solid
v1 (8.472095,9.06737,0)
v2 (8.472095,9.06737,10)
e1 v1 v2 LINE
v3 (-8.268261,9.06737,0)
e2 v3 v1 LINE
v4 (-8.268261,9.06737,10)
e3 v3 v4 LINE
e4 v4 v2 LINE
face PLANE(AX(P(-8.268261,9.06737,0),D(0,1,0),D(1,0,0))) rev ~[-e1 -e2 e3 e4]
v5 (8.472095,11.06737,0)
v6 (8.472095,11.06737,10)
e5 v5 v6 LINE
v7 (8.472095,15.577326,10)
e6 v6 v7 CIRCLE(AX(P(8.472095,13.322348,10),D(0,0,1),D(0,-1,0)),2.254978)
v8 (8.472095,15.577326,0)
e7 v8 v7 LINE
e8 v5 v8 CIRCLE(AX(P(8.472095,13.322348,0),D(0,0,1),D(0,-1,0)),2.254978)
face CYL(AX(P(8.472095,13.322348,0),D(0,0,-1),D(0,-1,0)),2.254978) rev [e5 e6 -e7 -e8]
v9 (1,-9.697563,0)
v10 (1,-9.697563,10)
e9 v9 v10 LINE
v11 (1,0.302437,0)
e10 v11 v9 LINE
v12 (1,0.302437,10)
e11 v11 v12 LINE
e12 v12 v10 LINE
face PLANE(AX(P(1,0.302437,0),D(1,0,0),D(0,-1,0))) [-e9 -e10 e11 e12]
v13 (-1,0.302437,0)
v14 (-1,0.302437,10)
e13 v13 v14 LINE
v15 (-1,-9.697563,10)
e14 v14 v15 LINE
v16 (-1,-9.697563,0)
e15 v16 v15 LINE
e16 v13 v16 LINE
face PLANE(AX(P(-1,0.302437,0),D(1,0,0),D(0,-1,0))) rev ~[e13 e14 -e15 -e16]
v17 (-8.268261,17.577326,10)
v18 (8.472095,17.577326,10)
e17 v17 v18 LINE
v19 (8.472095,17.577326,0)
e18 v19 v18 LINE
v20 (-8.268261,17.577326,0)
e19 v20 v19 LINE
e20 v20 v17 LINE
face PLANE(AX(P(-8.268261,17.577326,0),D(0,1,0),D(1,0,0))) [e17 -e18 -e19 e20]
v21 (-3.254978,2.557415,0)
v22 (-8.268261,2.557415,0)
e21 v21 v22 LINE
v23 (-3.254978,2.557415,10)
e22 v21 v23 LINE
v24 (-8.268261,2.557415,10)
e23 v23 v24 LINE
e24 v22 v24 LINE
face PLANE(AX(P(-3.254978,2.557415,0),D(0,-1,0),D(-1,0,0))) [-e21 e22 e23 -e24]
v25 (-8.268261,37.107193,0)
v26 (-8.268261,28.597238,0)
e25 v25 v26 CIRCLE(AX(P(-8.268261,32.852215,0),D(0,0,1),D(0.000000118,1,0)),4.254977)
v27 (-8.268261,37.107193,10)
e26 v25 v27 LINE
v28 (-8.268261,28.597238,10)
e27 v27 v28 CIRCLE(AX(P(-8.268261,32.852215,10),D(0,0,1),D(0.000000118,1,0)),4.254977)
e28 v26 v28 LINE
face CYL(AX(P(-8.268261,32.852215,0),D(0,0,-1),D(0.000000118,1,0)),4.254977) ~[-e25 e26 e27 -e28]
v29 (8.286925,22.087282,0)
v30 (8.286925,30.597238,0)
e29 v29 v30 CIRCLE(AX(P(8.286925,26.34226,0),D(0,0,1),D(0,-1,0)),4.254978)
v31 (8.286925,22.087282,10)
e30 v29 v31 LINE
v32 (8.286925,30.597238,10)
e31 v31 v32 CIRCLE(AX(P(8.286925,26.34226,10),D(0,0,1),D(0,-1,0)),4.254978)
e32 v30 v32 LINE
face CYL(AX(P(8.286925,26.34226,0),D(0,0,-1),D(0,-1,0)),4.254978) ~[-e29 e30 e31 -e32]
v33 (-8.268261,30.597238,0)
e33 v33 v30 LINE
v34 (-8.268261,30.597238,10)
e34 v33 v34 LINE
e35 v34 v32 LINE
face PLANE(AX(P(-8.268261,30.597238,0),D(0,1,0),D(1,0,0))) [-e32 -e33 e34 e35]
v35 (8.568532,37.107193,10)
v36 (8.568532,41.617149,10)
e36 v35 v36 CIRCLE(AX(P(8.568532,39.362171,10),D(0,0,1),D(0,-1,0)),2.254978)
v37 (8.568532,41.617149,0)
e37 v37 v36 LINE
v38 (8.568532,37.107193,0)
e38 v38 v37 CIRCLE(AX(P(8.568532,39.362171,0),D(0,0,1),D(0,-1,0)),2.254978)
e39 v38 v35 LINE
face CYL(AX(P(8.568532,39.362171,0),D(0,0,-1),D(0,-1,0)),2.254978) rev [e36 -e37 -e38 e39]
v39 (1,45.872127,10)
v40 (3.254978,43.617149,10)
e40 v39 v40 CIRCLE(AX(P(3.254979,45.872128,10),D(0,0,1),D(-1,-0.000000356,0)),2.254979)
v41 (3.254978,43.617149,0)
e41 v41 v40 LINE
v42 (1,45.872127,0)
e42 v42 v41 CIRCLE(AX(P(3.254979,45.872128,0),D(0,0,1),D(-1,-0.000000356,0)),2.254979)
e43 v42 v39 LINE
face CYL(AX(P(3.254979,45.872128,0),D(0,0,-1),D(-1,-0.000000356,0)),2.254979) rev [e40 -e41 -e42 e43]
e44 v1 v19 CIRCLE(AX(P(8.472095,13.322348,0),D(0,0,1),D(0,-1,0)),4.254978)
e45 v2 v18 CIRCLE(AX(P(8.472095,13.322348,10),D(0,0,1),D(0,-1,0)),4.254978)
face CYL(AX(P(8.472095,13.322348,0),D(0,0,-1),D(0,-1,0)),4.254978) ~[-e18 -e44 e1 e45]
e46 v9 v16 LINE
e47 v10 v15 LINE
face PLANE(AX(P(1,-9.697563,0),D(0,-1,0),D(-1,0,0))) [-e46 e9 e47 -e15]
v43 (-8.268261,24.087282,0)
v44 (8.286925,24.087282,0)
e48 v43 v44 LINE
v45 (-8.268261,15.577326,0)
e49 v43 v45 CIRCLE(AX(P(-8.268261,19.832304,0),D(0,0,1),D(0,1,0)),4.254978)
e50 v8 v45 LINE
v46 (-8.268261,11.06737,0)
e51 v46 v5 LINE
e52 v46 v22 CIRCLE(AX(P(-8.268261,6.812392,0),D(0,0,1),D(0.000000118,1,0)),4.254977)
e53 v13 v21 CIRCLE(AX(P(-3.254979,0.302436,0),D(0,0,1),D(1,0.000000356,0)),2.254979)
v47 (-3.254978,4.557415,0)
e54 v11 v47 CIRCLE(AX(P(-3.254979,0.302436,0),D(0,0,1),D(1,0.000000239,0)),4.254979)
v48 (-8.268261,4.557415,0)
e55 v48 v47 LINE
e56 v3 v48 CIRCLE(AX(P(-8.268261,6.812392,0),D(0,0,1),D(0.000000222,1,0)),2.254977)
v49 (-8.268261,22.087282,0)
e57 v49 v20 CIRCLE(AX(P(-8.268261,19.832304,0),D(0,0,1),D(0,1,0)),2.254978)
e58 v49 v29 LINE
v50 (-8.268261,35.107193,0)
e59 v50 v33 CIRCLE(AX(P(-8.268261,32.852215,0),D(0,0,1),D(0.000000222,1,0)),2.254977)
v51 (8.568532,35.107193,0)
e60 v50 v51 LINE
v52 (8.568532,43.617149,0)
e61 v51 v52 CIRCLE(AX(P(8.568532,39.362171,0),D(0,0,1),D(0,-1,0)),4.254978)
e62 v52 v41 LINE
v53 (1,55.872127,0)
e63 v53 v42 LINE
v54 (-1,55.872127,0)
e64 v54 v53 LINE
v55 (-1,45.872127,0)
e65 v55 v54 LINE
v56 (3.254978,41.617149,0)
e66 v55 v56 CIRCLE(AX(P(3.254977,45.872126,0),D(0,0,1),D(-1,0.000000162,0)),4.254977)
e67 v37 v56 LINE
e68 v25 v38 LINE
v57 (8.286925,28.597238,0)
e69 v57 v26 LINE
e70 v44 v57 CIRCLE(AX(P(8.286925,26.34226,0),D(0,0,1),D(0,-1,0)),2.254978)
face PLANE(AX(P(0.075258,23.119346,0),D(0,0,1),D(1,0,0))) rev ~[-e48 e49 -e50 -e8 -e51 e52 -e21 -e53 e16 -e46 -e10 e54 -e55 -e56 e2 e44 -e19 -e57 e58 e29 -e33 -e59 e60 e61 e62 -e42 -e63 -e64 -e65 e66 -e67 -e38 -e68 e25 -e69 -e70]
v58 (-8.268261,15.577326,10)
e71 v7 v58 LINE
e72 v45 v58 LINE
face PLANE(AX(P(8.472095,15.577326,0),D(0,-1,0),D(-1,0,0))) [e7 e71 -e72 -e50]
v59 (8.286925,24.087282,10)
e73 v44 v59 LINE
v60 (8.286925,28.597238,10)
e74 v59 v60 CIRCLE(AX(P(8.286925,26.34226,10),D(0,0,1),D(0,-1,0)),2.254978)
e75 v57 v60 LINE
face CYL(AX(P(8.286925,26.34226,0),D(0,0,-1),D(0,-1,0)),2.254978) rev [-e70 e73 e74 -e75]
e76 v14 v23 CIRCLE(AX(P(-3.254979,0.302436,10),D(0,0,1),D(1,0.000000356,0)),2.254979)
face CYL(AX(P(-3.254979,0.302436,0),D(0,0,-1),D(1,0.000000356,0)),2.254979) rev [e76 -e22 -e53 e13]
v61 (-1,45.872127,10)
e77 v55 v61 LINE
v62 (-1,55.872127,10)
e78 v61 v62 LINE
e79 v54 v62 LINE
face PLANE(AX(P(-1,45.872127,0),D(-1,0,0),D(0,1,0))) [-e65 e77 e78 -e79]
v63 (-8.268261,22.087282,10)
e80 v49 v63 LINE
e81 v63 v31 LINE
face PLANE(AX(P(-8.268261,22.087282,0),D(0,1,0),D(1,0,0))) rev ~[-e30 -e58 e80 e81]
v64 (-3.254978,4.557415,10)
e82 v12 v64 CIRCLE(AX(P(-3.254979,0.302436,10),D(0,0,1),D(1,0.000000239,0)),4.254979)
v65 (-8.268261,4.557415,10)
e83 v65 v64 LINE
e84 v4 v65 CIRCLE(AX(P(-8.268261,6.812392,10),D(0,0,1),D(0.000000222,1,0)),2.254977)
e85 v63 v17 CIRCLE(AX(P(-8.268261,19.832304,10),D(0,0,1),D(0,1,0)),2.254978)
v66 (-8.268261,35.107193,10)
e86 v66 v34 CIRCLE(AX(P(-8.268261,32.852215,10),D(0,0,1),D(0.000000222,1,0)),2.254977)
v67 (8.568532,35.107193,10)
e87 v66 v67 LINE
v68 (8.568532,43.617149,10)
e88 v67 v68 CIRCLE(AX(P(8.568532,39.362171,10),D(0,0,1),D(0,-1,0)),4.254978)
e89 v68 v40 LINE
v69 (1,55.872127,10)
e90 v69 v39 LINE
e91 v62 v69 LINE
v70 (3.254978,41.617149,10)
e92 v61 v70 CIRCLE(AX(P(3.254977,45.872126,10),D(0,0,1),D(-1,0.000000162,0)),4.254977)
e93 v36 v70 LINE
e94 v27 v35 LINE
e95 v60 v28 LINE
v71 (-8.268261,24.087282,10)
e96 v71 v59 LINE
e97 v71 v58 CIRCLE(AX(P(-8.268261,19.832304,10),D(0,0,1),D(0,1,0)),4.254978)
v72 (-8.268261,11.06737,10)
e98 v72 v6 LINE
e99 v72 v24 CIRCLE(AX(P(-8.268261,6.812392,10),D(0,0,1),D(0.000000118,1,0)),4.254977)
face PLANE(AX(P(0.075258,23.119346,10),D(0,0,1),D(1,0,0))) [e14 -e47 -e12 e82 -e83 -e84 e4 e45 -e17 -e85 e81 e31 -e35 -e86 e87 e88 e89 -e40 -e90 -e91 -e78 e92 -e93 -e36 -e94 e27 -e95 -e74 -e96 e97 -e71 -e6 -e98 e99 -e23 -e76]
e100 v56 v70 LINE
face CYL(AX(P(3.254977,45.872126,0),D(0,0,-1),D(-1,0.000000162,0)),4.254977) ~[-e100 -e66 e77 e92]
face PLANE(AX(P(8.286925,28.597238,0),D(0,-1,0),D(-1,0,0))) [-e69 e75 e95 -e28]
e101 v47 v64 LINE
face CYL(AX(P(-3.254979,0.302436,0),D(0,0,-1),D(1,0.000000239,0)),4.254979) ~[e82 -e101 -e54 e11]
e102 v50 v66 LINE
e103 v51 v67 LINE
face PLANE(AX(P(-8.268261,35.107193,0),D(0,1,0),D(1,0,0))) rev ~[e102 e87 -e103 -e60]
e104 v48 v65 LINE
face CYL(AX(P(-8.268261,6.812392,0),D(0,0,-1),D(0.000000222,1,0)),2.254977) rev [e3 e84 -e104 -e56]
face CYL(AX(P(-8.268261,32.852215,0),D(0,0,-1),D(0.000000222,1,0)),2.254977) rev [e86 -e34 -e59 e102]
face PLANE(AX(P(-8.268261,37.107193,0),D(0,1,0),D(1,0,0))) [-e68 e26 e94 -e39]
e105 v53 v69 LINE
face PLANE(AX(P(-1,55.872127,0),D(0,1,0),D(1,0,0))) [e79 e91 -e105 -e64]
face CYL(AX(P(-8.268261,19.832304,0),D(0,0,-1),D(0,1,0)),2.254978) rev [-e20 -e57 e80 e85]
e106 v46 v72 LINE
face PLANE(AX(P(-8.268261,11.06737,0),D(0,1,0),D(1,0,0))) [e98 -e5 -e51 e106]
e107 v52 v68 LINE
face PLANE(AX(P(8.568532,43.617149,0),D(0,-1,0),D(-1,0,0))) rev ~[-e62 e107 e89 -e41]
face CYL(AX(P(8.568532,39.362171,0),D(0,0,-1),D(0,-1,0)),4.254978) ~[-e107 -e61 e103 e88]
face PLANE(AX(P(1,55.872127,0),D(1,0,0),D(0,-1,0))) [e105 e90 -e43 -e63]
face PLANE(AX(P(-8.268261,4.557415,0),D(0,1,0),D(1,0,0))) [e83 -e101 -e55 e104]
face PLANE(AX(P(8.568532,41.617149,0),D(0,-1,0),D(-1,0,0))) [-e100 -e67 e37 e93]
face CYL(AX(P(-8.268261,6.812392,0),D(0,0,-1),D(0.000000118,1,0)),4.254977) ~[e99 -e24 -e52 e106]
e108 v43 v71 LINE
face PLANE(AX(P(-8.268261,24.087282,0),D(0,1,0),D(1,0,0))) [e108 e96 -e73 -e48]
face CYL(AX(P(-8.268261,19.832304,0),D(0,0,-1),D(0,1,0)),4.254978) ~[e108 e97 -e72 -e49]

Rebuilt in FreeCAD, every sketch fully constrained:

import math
import FreeCAD as App
import Part
import Sketcher

V = App.Vector

doc = App.newDocument("Part")
params = doc.addObject("Spreadsheet::Sheet", "Params")
for row, (alias, value) in enumerate([
    ("sketch1_width", "2 mm"),
    ("sketch1_height", "10 mm"),
    ("pad1_length", "10 mm"),
], start=1):
    params.set(f"A{row}", alias)
    params.set(f"B{row}", "=" + value)
    params.setAlias(f"B{row}", alias)

body = doc.addObject("PartDesign::Body", "Body")

# Sketch on XY plane
sketch1 = body.newObject("Sketcher::SketchObject", "Sketch")
sketch1.AttachmentSupport = (doc.getObject("XY_Plane"), [""])
sketch1.MapMode = "FlatFace"
sketch1.addGeometry([
    Part.ArcOfCircle(Part.Circle(V(-8.268261, 19.832304, 0), V(0, 0, 1), 4.254978), math.radians(90), math.radians(270)),  # 0
    Part.LineSegment(V(-8.268261, 15.577326, 0), V(8.472095, 15.577326, 0)),  # 1
    Part.ArcOfCircle(Part.Circle(V(8.472095, 13.322348, 0), V(0, 0, 1), 2.254978), math.radians(-90), math.radians(90)),  # 2
    Part.LineSegment(V(8.472095, 11.06737, 0), V(-8.268261, 11.06737, 0)),  # 3
    Part.ArcOfCircle(Part.Circle(V(-8.268261, 6.812392, 0), V(0, 0, 1), 4.254977), math.radians(89.999993), math.radians(270.000007)),  # 4
    Part.LineSegment(V(-8.268261, 2.557415, 0), V(-3.254978, 2.557415, 0)),  # 5
    Part.ArcOfCircle(Part.Circle(V(-3.254979, 0.302436, 0), V(0, 0, 1), 2.254979), math.radians(0.00002), math.radians(89.99998)),  # 6
    Part.LineSegment(V(-1, 0.302437, 0), V(-1, -9.697563, 0)),  # 7
    Part.LineSegment(V(-1, -9.697563, 0), V(1, -9.697563, 0)),  # 8
    Part.LineSegment(V(1, -9.697563, 0), V(1, 0.302437, 0)),  # 9
    Part.ArcOfCircle(Part.Circle(V(-3.254979, 0.302436, 0), V(0, 0, 1), 4.254979), math.radians(0.000014), math.radians(89.999986)),  # 10
    Part.LineSegment(V(-3.254978, 4.557415, 0), V(-8.268261, 4.557415, 0)),  # 11
    Part.ArcOfCircle(Part.Circle(V(-8.268261, 6.812392, 0), V(0, 0, 1), 2.254977), math.radians(89.999987), math.radians(270.000013)),  # 12
    Part.LineSegment(V(-8.268261, 9.06737, 0), V(8.472095, 9.06737, 0)),  # 13
    Part.ArcOfCircle(Part.Circle(V(8.472095, 13.322348, 0), V(0, 0, 1), 4.254978), math.radians(-90), math.radians(90)),  # 14
    Part.LineSegment(V(8.472095, 17.577326, 0), V(-8.268261, 17.577326, 0)),  # 15
    Part.ArcOfCircle(Part.Circle(V(-8.268261, 19.832304, 0), V(0, 0, 1), 2.254978), math.radians(90), math.radians(270)),  # 16
    Part.LineSegment(V(-8.268261, 22.087282, 0), V(8.286925, 22.087282, 0)),  # 17
    Part.ArcOfCircle(Part.Circle(V(8.286925, 26.34226, 0), V(0, 0, 1), 4.254978), math.radians(-90), math.radians(90)),  # 18
    Part.LineSegment(V(8.286925, 30.597238, 0), V(-8.268261, 30.597238, 0)),  # 19
    Part.ArcOfCircle(Part.Circle(V(-8.268261, 32.852215, 0), V(0, 0, 1), 2.254977), math.radians(89.999987), math.radians(270.000013)),  # 20
    Part.LineSegment(V(-8.268261, 35.107193, 0), V(8.568532, 35.107193, 0)),  # 21
    Part.ArcOfCircle(Part.Circle(V(8.568532, 39.362171, 0), V(0, 0, 1), 4.254978), math.radians(-90), math.radians(90)),  # 22
    Part.LineSegment(V(8.568532, 43.617149, 0), V(3.254978, 43.617149, 0)),  # 23
    Part.ArcOfCircle(Part.Circle(V(3.254979, 45.872128, 0), V(0, 0, 1), 2.254979), math.radians(-179.99998), math.radians(-90.00002)),  # 24
    Part.LineSegment(V(1, 45.872127, 0), V(1, 55.872127, 0)),  # 25
    Part.LineSegment(V(1, 55.872127, 0), V(-1, 55.872127, 0)),  # 26
    Part.LineSegment(V(-1, 55.872127, 0), V(-1, 45.872127, 0)),  # 27
    Part.ArcOfCircle(Part.Circle(V(3.254977, 45.872126, 0), V(0, 0, 1), 4.254977), math.radians(179.999991), math.radians(270.000009)),  # 28
    Part.LineSegment(V(3.254978, 41.617149, 0), V(8.568532, 41.617149, 0)),  # 29
    Part.ArcOfCircle(Part.Circle(V(8.568532, 39.362171, 0), V(0, 0, 1), 2.254978), math.radians(-90), math.radians(90)),  # 30
    Part.LineSegment(V(8.568532, 37.107193, 0), V(-8.268261, 37.107193, 0)),  # 31
    Part.ArcOfCircle(Part.Circle(V(-8.268261, 32.852215, 0), V(0, 0, 1), 4.254977), math.radians(89.999993), math.radians(270.000007)),  # 32
    Part.LineSegment(V(-8.268261, 28.597238, 0), V(8.286925, 28.597238, 0)),  # 33
    Part.ArcOfCircle(Part.Circle(V(8.286925, 26.34226, 0), V(0, 0, 1), 2.254978), math.radians(-90), math.radians(90)),  # 34
    Part.LineSegment(V(8.286925, 24.087282, 0), V(-8.268261, 24.087282, 0)),  # 35
], False)
sketch1.addConstraint([
    Sketcher.Constraint("Tangent", 0, 2, 1, 1),
    Sketcher.Constraint("Tangent", 1, 2, 2, 2),
    Sketcher.Constraint("Tangent", 2, 1, 3, 1),
    Sketcher.Constraint("Tangent", 3, 2, 4, 1),
    Sketcher.Constraint("Tangent", 4, 2, 5, 1),
    Sketcher.Constraint("Tangent", 5, 2, 6, 2),
    Sketcher.Constraint("Tangent", 6, 1, 7, 1),
    Sketcher.Constraint("Coincident", 7, 2, 8, 1),
    Sketcher.Constraint("Coincident", 8, 2, 9, 1),
    Sketcher.Constraint("Tangent", 9, 2, 10, 1),
    Sketcher.Constraint("Tangent", 10, 2, 11, 1),
    Sketcher.Constraint("Tangent", 11, 2, 12, 2),
    Sketcher.Constraint("Tangent", 12, 1, 13, 1),
    Sketcher.Constraint("Tangent", 13, 2, 14, 1),
    Sketcher.Constraint("Tangent", 14, 2, 15, 1),
    Sketcher.Constraint("Tangent", 15, 2, 16, 2),
    Sketcher.Constraint("Tangent", 16, 1, 17, 1),
    Sketcher.Constraint("Tangent", 17, 2, 18, 1),
    Sketcher.Constraint("Tangent", 18, 2, 19, 1),
    Sketcher.Constraint("Tangent", 19, 2, 20, 2),
    Sketcher.Constraint("Tangent", 20, 1, 21, 1),
    Sketcher.Constraint("Tangent", 21, 2, 22, 1),
    Sketcher.Constraint("Tangent", 22, 2, 23, 1),
    Sketcher.Constraint("Tangent", 23, 2, 24, 2),
    Sketcher.Constraint("Tangent", 24, 1, 25, 1),
    Sketcher.Constraint("Coincident", 25, 2, 26, 1),
    Sketcher.Constraint("Coincident", 26, 2, 27, 1),
    Sketcher.Constraint("Tangent", 27, 2, 28, 1),
    Sketcher.Constraint("Tangent", 28, 2, 29, 1),
    Sketcher.Constraint("Tangent", 29, 2, 30, 2),
    Sketcher.Constraint("Tangent", 30, 1, 31, 1),
    Sketcher.Constraint("Tangent", 31, 2, 32, 1),
    Sketcher.Constraint("Tangent", 32, 2, 33, 1),
    Sketcher.Constraint("Tangent", 33, 2, 34, 2),
    Sketcher.Constraint("Tangent", 34, 1, 35, 1),
    Sketcher.Constraint("Tangent", 35, 2, 0, 1),
    Sketcher.Constraint("Horizontal", 1),
    Sketcher.Constraint("Horizontal", 3),
    Sketcher.Constraint("Horizontal", 5),
    Sketcher.Constraint("Vertical", 7),
    Sketcher.Constraint("Horizontal", 8),
    Sketcher.Constraint("Vertical", 9),
    Sketcher.Constraint("Horizontal", 11),
    Sketcher.Constraint("Horizontal", 13),
    Sketcher.Constraint("Horizontal", 15),
    Sketcher.Constraint("Horizontal", 17),
    Sketcher.Constraint("Horizontal", 19),
    Sketcher.Constraint("Horizontal", 21),
    Sketcher.Constraint("Horizontal", 23),
    Sketcher.Constraint("Vertical", 25),
    Sketcher.Constraint("Horizontal", 26),
    Sketcher.Constraint("Vertical", 27),
    Sketcher.Constraint("Horizontal", 29),
    Sketcher.Constraint("Horizontal", 31),
    Sketcher.Constraint("Horizontal", 33),
    Sketcher.Constraint("Horizontal", 35),
    Sketcher.Constraint("Coincident", 10, 3, 6, 3),
    Sketcher.Constraint("Coincident", 12, 3, 4, 3),
    Sketcher.Constraint("Coincident", 14, 3, 2, 3),
    Sketcher.Constraint("Coincident", 16, 3, 0, 3),
    Sketcher.Constraint("Coincident", 28, 3, 24, 3),
    Sketcher.Constraint("Coincident", 30, 3, 22, 3),
    Sketcher.Constraint("Coincident", 32, 3, 20, 3),
    Sketcher.Constraint("Coincident", 34, 3, 18, 3),
    Sketcher.Constraint("Equal", 0, 4),
    Sketcher.Constraint("Equal", 2, 6),
    Sketcher.Constraint("Equal", 4, 10),
    Sketcher.Constraint("Equal", 14, 18),
    Sketcher.Constraint("Equal", 16, 20),
    Sketcher.Constraint("Equal", 18, 22),
    Sketcher.Constraint("Equal", 20, 24),
    Sketcher.Constraint("Vertical", 0, 3, 4, 3),
    Sketcher.Constraint("Vertical", 16, 3, 20, 3),
    Sketcher.Constraint("Vertical", 9, 2, 24, 1),
    Sketcher.Constraint("Equal", 9, 25),
    Sketcher.Constraint("DistanceX", 8, 1, 8, 2, 2.0),
    Sketcher.Constraint("DistanceY", 7, 2, 7, 1, 10.0),
    Sketcher.Constraint("DistanceX", 6, 1, -1, 1, 1.0),
    Sketcher.Constraint("Radius", 0, 4.254978),
    Sketcher.Constraint("DistanceX", 1, 1, 1, 2, 16.740356),
    Sketcher.Constraint("DistanceX", 5, 1, 5, 2, 5.013283),
    Sketcher.Constraint("DistanceX", 17, 1, 17, 2, 16.555186),
    Sketcher.Constraint("DistanceX", 21, 1, 21, 2, 16.836793),
    Sketcher.Constraint("DistanceY", -1, 1, 18, 3, 26.34226),
])
sketch1.setExpression("Constraints[75]", "Params.sketch1_width")
sketch1.setExpression("Constraints[76]", "Params.sketch1_height")
pad1 = body.newObject("PartDesign::Pad", "Pad")
pad1.Profile = sketch1
pad1.setExpression("Length", "Params.pad1_length")

doc.recompute()
